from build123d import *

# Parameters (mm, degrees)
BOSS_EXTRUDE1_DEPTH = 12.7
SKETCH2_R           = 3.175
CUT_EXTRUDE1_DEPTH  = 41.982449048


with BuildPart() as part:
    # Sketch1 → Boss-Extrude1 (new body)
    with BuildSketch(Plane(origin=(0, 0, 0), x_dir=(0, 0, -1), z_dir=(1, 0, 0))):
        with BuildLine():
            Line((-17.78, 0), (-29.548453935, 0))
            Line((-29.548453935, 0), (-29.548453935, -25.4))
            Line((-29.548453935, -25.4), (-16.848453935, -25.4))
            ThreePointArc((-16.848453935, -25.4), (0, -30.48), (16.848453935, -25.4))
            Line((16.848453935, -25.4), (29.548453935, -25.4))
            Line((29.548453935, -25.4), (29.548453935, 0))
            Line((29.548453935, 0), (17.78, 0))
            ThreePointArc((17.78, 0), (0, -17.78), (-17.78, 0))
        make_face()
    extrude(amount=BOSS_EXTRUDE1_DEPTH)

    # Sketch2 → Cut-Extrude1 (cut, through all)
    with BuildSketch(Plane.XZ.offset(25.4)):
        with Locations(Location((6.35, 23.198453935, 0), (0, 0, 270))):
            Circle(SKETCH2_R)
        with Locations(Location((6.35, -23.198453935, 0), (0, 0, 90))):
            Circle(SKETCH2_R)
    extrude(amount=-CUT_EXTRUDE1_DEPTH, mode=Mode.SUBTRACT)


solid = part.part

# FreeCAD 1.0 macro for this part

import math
import FreeCAD as App
import Part
import Sketcher
from FreeCAD import Vector
Q = App.Units.Quantity

doc = App.newDocument("Part")
params = doc.addObject("Spreadsheet::Sheet", "Params")
for row, (alias, value) in enumerate([
    ("sketch1_radius", "1.2 in"),
    ("sketch1_radius2", "0.7 in"),
    ("sketch1_width", "1 in"),
    ("sketch1_height", "0.5 in"),
    ("pad1_length", "0.5 in"),
    ("sketch2_diameter", "0.25 in"),
], start=1):
    params.set(f"A{row}", alias)
    params.set(f"B{row}", "=" + value)
    params.setAlias(f"B{row}", alias)

body = doc.addObject("PartDesign::Body", "Body")

sketch1 = doc.addObject("Sketcher::SketchObject", "Sketch")
body.addObject(sketch1)
sketch1.AttachmentSupport = (doc.YZ_Plane, [""])
sketch1.MapMode = "FlatFace"
sketch1.addGeometry(Part.LineSegment(Vector(0, 18, 0), Vector(0, 30, 0)), False)
sketch1.addGeometry(Part.LineSegment(Vector(0, 30, 0), Vector(-25, 30, 0)), False)
sketch1.addGeometry(Part.LineSegment(Vector(-25, 30, 0), Vector(-25, 17, 0)), False)
sketch1.addGeometry(Part.ArcOfCircle(Part.Circle(Vector(0, 0, 0), Vector(0, 0, 1), 30), math.radians(146), math.radians(214)), False)
sketch1.addGeometry(Part.LineSegment(Vector(-25, -17, 0), Vector(-25, -30, 0)), False)
sketch1.addGeometry(Part.LineSegment(Vector(-25, -30, 0), Vector(0, -30, 0)), False)
sketch1.addGeometry(Part.LineSegment(Vector(0, -30, 0), Vector(0, -18, 0)), False)
sketch1.addGeometry(Part.ArcOfCircle(Part.Circle(Vector(0, 0, 0), Vector(0, 0, 1), 18), math.radians(90), math.radians(270)), False)
sketch1.addConstraint(Sketcher.Constraint("Coincident", 0, 2, 1, 1))
sketch1.addConstraint(Sketcher.Constraint("Coincident", 1, 2, 2, 1))
sketch1.addConstraint(Sketcher.Constraint("Coincident", 2, 2, 3, 1))
sketch1.addConstraint(Sketcher.Constraint("Coincident", 3, 2, 4, 1))
sketch1.addConstraint(Sketcher.Constraint("Coincident", 4, 2, 5, 1))
sketch1.addConstraint(Sketcher.Constraint("Coincident", 5, 2, 6, 1))
sketch1.addConstraint(Sketcher.Constraint("Coincident", 6, 2, 7, 2))
sketch1.addConstraint(Sketcher.Constraint("Coincident", 7, 1, 0, 1))
sketch1.addConstraint(Sketcher.Constraint("Vertical", 0))
sketch1.addConstraint(Sketcher.Constraint("Horizontal", 1))
sketch1.addConstraint(Sketcher.Constraint("Vertical", 2))
sketch1.addConstraint(Sketcher.Constraint("Vertical", 4))
sketch1.addConstraint(Sketcher.Constraint("Horizontal", 5))
sketch1.addConstraint(Sketcher.Constraint("Vertical", 6))
sketch1.addConstraint(Sketcher.Constraint("Coincident", 3, 3, -1, 1))
sketch1.addConstraint(Sketcher.Constraint("Coincident", 7, 3, -1, 1))
sketch1.addConstraint(Sketcher.Constraint("Symmetric", 0, 2, 5, 2, -1, 1))
sketch1.addConstraint(Sketcher.Constraint("PointOnObject", 0, 2, -2))
sketch1.addConstraint(Sketcher.Constraint("Vertical", 2, 2, 3, 2))
sketch1.addConstraint(Sketcher.Constraint("Radius", 3, Q("1.2 in")))
sketch1.addConstraint(Sketcher.Constraint("Radius", 7, Q("0.7 in")))
sketch1.addConstraint(Sketcher.Constraint("DistanceX", 1, 2, 1, 1, Q("1 in")))
sketch1.addConstraint(Sketcher.Constraint("DistanceY", 2, 2, 2, 1, Q("0.5 in")))
sketch1.setExpression("Constraints[19]", "Params.sketch1_radius")
sketch1.setExpression("Constraints[20]", "Params.sketch1_radius2")
sketch1.setExpression("Constraints[21]", "Params.sketch1_width")
sketch1.setExpression("Constraints[22]", "Params.sketch1_height")
pad1 = doc.addObject("PartDesign::Pad", "Pad")
body.addObject(pad1)
pad1.Profile = sketch1
pad1.setExpression("Length", "Params.pad1_length")

sketch2 = doc.addObject("Sketcher::SketchObject", "Sketch001")
body.addObject(sketch2)
sketch2.AttachmentSupport = (doc.XZ_Plane, [""])
sketch2.MapMode = "FlatFace"
sketch2.AttachmentOffset = App.Placement(Vector(0, 0, 1 * 25.4), App.Rotation())
sketch2.addGeometry(Part.Circle(Vector(6.3, 23.2, 0), Vector(0, 0, 1), 3.2), False)
sketch2.addGeometry(Part.Circle(Vector(6.3, -23.2, 0), Vector(0, 0, 1), 3.2), False)
sketch2.addConstraint(Sketcher.Constraint("Equal", 0, 1))
sketch2.addConstraint(Sketcher.Constraint("Symmetric", 0, 3, 1, 3, -1))
sketch2.addConstraint(Sketcher.Constraint("Diameter", 0, Q("0.25 in")))
sketch2.addConstraint(Sketcher.Constraint("DistanceX", -1, 1, 0, 3, Q("0.25 in")))
sketch2.addConstraint(Sketcher.Constraint("DistanceY", -1, 1, 0, 3, 23.198454))
sketch2.setExpression("Constraints[2]", "Params.sketch2_diameter")
pocket1 = doc.addObject("PartDesign::Pocket", "Pocket")
body.addObject(pocket1)
pocket1.Profile = sketch2
pocket1.Type = "ThroughAll"

doc.recompute()
